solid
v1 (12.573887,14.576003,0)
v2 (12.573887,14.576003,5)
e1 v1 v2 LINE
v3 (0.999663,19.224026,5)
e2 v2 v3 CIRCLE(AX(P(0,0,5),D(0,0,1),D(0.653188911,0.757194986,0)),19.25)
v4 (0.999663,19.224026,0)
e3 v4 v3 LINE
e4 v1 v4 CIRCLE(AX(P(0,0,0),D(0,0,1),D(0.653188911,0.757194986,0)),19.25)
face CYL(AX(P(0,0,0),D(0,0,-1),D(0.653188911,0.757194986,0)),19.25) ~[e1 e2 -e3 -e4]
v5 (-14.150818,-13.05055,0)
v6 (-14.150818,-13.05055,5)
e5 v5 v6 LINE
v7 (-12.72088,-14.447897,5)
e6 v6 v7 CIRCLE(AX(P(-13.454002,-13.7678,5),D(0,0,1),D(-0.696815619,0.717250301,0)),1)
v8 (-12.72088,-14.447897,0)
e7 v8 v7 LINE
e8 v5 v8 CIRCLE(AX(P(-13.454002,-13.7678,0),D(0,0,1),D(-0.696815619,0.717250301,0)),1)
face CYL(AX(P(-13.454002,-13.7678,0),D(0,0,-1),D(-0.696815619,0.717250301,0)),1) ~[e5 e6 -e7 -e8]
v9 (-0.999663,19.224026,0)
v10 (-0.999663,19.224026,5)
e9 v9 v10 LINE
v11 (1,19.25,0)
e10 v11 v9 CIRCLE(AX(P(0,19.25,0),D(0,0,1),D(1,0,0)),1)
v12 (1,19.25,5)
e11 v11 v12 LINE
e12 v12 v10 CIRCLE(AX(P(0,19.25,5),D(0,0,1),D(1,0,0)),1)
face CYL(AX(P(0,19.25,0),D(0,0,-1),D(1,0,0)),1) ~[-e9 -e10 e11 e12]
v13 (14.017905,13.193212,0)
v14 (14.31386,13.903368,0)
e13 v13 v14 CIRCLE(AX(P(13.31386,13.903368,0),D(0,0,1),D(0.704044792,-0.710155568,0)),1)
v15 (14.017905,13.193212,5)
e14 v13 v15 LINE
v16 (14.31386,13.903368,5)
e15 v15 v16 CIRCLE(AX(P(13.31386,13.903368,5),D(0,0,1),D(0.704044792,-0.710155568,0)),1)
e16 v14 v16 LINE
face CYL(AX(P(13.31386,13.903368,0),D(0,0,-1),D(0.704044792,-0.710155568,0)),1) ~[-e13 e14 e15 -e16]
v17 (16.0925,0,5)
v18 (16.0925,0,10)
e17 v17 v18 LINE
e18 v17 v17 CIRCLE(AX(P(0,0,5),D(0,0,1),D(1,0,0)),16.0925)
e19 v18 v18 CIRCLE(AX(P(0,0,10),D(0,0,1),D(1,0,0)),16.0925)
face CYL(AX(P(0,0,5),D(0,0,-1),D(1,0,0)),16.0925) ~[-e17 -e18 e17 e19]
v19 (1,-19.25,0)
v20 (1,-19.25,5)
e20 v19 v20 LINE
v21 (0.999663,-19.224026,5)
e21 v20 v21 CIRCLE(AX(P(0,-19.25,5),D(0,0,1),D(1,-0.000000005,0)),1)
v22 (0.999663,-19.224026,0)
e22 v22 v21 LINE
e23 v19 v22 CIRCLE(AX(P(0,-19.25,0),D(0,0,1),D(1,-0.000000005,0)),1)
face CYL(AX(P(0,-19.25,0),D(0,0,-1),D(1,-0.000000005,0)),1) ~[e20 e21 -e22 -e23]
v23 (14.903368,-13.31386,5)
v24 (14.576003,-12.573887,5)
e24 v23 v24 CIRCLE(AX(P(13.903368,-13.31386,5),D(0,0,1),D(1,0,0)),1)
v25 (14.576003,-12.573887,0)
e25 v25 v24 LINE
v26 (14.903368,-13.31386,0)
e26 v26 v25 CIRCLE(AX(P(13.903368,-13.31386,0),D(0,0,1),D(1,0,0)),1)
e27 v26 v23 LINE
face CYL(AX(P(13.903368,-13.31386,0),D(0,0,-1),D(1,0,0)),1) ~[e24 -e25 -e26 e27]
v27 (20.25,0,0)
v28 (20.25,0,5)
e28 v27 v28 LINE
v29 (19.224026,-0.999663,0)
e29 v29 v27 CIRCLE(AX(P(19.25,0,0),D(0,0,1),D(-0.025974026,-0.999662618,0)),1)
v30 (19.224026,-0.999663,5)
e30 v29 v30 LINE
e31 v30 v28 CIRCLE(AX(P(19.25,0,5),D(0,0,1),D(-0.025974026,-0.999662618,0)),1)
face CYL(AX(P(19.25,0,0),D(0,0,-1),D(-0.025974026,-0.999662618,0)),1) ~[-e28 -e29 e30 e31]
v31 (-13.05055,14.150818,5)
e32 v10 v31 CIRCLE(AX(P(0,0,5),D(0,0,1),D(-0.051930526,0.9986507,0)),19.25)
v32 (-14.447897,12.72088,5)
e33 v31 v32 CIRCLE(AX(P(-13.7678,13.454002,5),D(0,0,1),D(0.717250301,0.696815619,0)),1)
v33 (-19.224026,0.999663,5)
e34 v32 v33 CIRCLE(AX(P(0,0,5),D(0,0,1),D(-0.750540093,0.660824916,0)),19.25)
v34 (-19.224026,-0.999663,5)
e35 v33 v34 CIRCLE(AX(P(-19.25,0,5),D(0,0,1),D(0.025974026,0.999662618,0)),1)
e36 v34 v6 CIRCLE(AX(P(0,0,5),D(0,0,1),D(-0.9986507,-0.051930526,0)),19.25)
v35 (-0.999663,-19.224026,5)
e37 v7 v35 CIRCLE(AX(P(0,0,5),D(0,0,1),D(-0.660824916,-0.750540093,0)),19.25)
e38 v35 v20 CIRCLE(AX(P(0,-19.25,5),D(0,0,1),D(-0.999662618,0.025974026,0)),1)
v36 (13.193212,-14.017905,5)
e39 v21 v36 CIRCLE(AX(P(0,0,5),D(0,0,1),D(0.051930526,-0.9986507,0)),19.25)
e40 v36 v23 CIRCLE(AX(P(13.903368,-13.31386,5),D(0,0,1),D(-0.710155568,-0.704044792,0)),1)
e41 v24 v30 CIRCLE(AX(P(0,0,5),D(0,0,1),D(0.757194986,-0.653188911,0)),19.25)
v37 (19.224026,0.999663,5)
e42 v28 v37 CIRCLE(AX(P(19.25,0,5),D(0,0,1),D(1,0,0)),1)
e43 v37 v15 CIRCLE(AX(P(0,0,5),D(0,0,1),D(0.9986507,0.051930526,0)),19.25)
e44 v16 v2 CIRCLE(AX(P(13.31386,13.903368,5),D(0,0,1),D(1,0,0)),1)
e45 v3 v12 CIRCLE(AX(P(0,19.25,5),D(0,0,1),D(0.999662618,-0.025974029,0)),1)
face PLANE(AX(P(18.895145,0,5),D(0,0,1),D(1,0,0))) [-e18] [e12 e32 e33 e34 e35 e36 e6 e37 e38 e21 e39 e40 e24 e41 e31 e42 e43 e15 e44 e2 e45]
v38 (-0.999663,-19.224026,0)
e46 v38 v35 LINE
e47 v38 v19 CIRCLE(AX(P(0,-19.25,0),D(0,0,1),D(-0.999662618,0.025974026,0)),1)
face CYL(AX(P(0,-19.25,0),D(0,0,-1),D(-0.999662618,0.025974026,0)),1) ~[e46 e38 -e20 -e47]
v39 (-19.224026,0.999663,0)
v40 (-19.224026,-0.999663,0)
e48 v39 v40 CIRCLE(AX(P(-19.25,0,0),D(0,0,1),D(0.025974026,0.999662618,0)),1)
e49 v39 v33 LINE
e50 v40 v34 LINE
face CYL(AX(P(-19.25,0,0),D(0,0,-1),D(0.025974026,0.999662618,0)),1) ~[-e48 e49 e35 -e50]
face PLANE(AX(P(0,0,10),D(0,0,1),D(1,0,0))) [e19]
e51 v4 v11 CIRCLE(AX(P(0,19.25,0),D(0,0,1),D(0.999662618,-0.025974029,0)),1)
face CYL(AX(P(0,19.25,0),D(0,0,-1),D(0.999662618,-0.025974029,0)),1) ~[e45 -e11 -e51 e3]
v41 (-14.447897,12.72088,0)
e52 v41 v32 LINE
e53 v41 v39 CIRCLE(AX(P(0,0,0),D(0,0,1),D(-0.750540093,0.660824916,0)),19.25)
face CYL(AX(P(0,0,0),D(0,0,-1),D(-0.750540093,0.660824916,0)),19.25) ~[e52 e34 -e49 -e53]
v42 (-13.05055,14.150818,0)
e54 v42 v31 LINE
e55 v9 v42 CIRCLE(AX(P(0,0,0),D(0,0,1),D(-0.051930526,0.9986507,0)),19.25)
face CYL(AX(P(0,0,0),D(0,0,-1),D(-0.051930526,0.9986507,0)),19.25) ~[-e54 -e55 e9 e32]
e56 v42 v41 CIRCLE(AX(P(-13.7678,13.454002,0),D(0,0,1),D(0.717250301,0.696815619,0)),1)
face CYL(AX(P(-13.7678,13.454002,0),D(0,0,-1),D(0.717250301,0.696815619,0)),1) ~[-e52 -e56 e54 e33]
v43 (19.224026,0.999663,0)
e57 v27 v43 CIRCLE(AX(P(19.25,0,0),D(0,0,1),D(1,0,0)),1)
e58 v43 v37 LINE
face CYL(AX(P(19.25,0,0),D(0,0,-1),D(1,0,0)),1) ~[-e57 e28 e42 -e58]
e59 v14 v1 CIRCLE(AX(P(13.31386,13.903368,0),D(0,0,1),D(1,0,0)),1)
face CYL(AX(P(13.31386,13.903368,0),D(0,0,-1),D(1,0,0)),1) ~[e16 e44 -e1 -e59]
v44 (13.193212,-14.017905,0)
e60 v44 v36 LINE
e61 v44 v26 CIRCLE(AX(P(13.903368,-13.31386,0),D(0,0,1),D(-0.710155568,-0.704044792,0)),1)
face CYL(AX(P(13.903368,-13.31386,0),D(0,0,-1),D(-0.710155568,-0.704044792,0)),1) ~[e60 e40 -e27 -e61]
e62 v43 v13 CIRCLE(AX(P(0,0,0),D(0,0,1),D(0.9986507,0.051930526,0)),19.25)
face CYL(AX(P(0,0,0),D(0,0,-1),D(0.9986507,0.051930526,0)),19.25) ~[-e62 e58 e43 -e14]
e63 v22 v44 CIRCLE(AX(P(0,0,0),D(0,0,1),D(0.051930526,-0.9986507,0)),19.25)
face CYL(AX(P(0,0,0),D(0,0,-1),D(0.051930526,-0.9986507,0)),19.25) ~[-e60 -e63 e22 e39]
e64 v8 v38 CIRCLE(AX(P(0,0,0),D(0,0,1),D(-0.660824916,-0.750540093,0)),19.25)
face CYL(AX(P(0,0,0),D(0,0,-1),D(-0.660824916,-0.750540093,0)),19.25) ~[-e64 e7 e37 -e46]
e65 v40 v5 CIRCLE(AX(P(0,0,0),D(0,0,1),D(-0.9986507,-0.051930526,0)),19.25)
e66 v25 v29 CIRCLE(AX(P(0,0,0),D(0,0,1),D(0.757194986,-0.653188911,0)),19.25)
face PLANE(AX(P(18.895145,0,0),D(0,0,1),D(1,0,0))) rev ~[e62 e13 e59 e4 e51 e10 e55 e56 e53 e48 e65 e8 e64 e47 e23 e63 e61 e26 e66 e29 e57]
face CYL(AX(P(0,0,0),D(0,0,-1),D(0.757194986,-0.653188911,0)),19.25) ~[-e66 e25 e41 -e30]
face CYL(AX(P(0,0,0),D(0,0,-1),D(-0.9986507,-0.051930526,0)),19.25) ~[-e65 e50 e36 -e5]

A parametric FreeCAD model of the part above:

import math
import FreeCAD as App
import Part
import Sketcher

V = App.Vector
Q = App.Units.Quantity

doc = App.newDocument("Part")
body = doc.addObject("PartDesign::Body", "Body")

sketch1 = body.newObject("Sketcher::SketchObject", "Sketch")
sketch1.AttachmentSupport = (doc.getObject("XY_Plane"), [""])
sketch1.MapMode = "FlatFace"
sketch1.addGeometry([
    Part.ArcOfCircle(Part.Circle(V(19.25, 0, 0), V(0, 0, 1), 1), math.radians(-91), math.radians(0)),
    Part.ArcOfCircle(Part.Circle(V(19.25, 0, 0), V(0, 0, 1), 1), math.radians(0), math.radians(91)),
    Part.ArcOfCircle(Part.Circle(V(0, 0, 0), V(0, 0, 1), 19.25), math.radians(3), math.radians(43)),
    Part.ArcOfCircle(Part.Circle(V(13.314, 13.903, 0), V(0, 0, 1), 1), math.radians(-45), math.radians(0)),
    Part.ArcOfCircle(Part.Circle(V(13.314, 13.903, 0), V(0, 0, 1), 1), math.radians(0), math.radians(138)),
    Part.ArcOfCircle(Part.Circle(V(0, 0, 0), V(0, 0, 1), 19.25), math.radians(49), math.radians(87)),
    Part.ArcOfCircle(Part.Circle(V(0, 19.25, 0), V(0, 0, 1), 1), math.radians(-1.49), math.radians(0)),
    Part.ArcOfCircle(Part.Circle(V(0, 19.25, 0), V(0, 0, 1), 1), math.radians(0), math.radians(181)),
    Part.ArcOfCircle(Part.Circle(V(0, 0, 0), V(0, 0, 1), 19.25), math.radians(93), math.radians(133)),
    Part.ArcOfCircle(Part.Circle(V(-13.768, 13.454, 0), V(0, 0, 1), 1), math.radians(44), math.radians(227)),
    Part.ArcOfCircle(Part.Circle(V(0, 0, 0), V(0, 0, 1), 19.25), math.radians(139), math.radians(177)),
    Part.ArcOfCircle(Part.Circle(V(-19.25, 0, 0), V(0, 0, 1), 1), math.radians(89), math.radians(271)),
    Part.ArcOfCircle(Part.Circle(V(0, 0, 0), V(0, 0, 1), 19.25), math.radians(-177), math.radians(-137)),
    Part.ArcOfCircle(Part.Circle(V(-13.454, -13.768, 0), V(0, 0, 1), 1), math.radians(134), math.radians(317)),
    Part.ArcOfCircle(Part.Circle(V(0, 0, 0), V(0, 0, 1), 19.25), math.radians(-131), math.radians(-93)),
    Part.ArcOfCircle(Part.Circle(V(0, -19.25, 0), V(0, 0, 1), 1), math.radians(179), math.radians(360)),
    Part.ArcOfCircle(Part.Circle(V(0, -19.25, 0), V(0, 0, 1), 1), math.radians(0), math.radians(1.49)),
    Part.ArcOfCircle(Part.Circle(V(0, 0, 0), V(0, 0, 1), 19.25), math.radians(-87), math.radians(-47)),
    Part.ArcOfCircle(Part.Circle(V(13.903, -13.314, 0), V(0, 0, 1), 1), math.radians(-135), math.radians(0)),
    Part.ArcOfCircle(Part.Circle(V(13.903, -13.314, 0), V(0, 0, 1), 1), math.radians(0), math.radians(48)),
    Part.ArcOfCircle(Part.Circle(V(0, 0, 0), V(0, 0, 1), 19.25), math.radians(-41), math.radians(-3)),
], False)
sketch1.addConstraint([
    Sketcher.Constraint("Tangent", 0, 2, 1, 1),
    Sketcher.Constraint("Coincident", 1, 2, 2, 1),
    Sketcher.Constraint("Coincident", 2, 2, 3, 1),
    Sketcher.Constraint("Tangent", 3, 2, 4, 1),
    Sketcher.Constraint("Coincident", 4, 2, 5, 1),
    Sketcher.Constraint("Coincident", 5, 2, 6, 1),
    Sketcher.Constraint("Tangent", 6, 2, 7, 1),
    Sketcher.Constraint("Coincident", 7, 2, 8, 1),
    Sketcher.Constraint("Coincident", 8, 2, 9, 1),
    Sketcher.Constraint("Coincident", 9, 2, 10, 1),
    Sketcher.Constraint("Coincident", 10, 2, 11, 1),
    Sketcher.Constraint("Coincident", 11, 2, 12, 1),
    Sketcher.Constraint("Coincident", 12, 2, 13, 1),
    Sketcher.Constraint("Coincident", 13, 2, 14, 1),
    Sketcher.Constraint("Coincident", 14, 2, 15, 1),
    Sketcher.Constraint("Tangent", 15, 2, 16, 1),
    Sketcher.Constraint("Coincident", 16, 2, 17, 1),
    Sketcher.Constraint("Coincident", 17, 2, 18, 1),
    Sketcher.Constraint("Tangent", 18, 2, 19, 1),
    Sketcher.Constraint("Coincident", 19, 2, 20, 1),
    Sketcher.Constraint("Coincident", 20, 2, 0, 1),
    Sketcher.Constraint("Coincident", 2, 3, -1, 1),
    Sketcher.Constraint("Coincident", 5, 3, -1, 1),
    Sketcher.Constraint("Coincident", 8, 3, -1, 1),
    Sketcher.Constraint("Coincident", 10, 3, -1, 1),
    Sketcher.Constraint("Coincident", 12, 3, -1, 1),
    Sketcher.Constraint("Coincident", 14, 3, -1, 1),
    Sketcher.Constraint("Coincident", 17, 3, -1, 1),
    Sketcher.Constraint("Coincident", 20, 3, -1, 1),
    Sketcher.Constraint("Equal", 0, 1),
    Sketcher.Constraint("Equal", 1, 3),
    Sketcher.Constraint("Equal", 3, 4),
    Sketcher.Constraint("Equal", 2, 5),
    Sketcher.Constraint("Equal", 4, 6),
    Sketcher.Constraint("Equal", 6, 7),
    Sketcher.Constraint("Equal", 5, 8),
    Sketcher.Constraint("Equal", 7, 9),
    Sketcher.Constraint("Equal", 8, 10),
    Sketcher.Constraint("Equal", 9, 11),
    Sketcher.Constraint("Equal", 10, 12),
    Sketcher.Constraint("Equal", 11, 13),
    Sketcher.Constraint("Equal", 12, 14),
    Sketcher.Constraint("Equal", 13, 15),
    Sketcher.Constraint("Equal", 15, 16),
    Sketcher.Constraint("Equal", 14, 17),
    Sketcher.Constraint("Equal", 16, 18),
    Sketcher.Constraint("Equal", 18, 19),
    Sketcher.Constraint("Equal", 17, 20),
    Sketcher.Constraint("Symmetric", 0, 3, 11, 3, -1, 1),
    Sketcher.Constraint("Symmetric", 6, 3, 15, 3, -1, 1),
    Sketcher.Constraint("Symmetric", 6, 2, 15, 2, -1),
    Sketcher.Constraint("PointOnObject", 0, 3, -1),
    Sketcher.Constraint("PointOnObject", 0, 2, -1),
    Sketcher.Constraint("Horizontal", 4, 3, 3, 2),
    Sketcher.Constraint("Horizontal", 7, 3, 6, 2),
    Sketcher.Constraint("Horizontal", 19, 3, 18, 2),
    Sketcher.Constraint("Radius", 0, Q("1 mm")),
    Sketcher.Constraint("Radius", 2, Q("19.25 mm")),
    Sketcher.Constraint("DistanceX", -1, 1, 0, 3, Q("19.25 mm")),
    Sketcher.Constraint("DistanceY", -1, 1, 6, 3, Q("19.25 mm")),
    Sketcher.Constraint("DistanceX", 9, 3, -1, 1, Q("13.7678 mm")),
    Sketcher.Constraint("DistanceY", 13, 3, -1, 1, Q("13.7678 mm")),
    Sketcher.Constraint("DistanceX", -1, 1, 3, 3, Q("13.31386 mm")),
    Sketcher.Constraint("DistanceY", 18, 3, -1, 1, Q("13.31386 mm")),
    Sketcher.Constraint("DistanceY", -1, 1, 2, 2, Q("13.193212 mm")),
    Sketcher.Constraint("DistanceX", 8, 2, -1, 1, Q("13.05055 mm")),
    Sketcher.Constraint("DistanceY", 12, 2, -1, 1, Q("13.05055 mm")),
    Sketcher.Constraint("DistanceX", -1, 1, 17, 2, Q("13.193212 mm")),
])
pad1 = body.newObject("PartDesign::Pad", "Pad")
pad1.Profile = sketch1
pad1.Length = 5

sketch2 = body.newObject("Sketcher::SketchObject", "Sketch001")
sketch2.AttachmentSupport = (doc.getObject("XY_Plane"), [""])
sketch2.MapMode = "FlatFace"
sketch2.AttachmentOffset = App.Placement(V(0, 0, 5), App.Rotation())
sketch2.addGeometry(Part.Circle(V(0, 0, 0), V(0, 0, 1), 16), False)
sketch2.addConstraint([
    Sketcher.Constraint("Coincident", 0, 3, -1, 1),
    Sketcher.Constraint("Diameter", 0, Q("32.185 mm")),
])
pad2 = body.newObject("PartDesign::Pad", "Pad001")
pad2.Profile = sketch2
pad2.Length = 5

doc.recompute()
